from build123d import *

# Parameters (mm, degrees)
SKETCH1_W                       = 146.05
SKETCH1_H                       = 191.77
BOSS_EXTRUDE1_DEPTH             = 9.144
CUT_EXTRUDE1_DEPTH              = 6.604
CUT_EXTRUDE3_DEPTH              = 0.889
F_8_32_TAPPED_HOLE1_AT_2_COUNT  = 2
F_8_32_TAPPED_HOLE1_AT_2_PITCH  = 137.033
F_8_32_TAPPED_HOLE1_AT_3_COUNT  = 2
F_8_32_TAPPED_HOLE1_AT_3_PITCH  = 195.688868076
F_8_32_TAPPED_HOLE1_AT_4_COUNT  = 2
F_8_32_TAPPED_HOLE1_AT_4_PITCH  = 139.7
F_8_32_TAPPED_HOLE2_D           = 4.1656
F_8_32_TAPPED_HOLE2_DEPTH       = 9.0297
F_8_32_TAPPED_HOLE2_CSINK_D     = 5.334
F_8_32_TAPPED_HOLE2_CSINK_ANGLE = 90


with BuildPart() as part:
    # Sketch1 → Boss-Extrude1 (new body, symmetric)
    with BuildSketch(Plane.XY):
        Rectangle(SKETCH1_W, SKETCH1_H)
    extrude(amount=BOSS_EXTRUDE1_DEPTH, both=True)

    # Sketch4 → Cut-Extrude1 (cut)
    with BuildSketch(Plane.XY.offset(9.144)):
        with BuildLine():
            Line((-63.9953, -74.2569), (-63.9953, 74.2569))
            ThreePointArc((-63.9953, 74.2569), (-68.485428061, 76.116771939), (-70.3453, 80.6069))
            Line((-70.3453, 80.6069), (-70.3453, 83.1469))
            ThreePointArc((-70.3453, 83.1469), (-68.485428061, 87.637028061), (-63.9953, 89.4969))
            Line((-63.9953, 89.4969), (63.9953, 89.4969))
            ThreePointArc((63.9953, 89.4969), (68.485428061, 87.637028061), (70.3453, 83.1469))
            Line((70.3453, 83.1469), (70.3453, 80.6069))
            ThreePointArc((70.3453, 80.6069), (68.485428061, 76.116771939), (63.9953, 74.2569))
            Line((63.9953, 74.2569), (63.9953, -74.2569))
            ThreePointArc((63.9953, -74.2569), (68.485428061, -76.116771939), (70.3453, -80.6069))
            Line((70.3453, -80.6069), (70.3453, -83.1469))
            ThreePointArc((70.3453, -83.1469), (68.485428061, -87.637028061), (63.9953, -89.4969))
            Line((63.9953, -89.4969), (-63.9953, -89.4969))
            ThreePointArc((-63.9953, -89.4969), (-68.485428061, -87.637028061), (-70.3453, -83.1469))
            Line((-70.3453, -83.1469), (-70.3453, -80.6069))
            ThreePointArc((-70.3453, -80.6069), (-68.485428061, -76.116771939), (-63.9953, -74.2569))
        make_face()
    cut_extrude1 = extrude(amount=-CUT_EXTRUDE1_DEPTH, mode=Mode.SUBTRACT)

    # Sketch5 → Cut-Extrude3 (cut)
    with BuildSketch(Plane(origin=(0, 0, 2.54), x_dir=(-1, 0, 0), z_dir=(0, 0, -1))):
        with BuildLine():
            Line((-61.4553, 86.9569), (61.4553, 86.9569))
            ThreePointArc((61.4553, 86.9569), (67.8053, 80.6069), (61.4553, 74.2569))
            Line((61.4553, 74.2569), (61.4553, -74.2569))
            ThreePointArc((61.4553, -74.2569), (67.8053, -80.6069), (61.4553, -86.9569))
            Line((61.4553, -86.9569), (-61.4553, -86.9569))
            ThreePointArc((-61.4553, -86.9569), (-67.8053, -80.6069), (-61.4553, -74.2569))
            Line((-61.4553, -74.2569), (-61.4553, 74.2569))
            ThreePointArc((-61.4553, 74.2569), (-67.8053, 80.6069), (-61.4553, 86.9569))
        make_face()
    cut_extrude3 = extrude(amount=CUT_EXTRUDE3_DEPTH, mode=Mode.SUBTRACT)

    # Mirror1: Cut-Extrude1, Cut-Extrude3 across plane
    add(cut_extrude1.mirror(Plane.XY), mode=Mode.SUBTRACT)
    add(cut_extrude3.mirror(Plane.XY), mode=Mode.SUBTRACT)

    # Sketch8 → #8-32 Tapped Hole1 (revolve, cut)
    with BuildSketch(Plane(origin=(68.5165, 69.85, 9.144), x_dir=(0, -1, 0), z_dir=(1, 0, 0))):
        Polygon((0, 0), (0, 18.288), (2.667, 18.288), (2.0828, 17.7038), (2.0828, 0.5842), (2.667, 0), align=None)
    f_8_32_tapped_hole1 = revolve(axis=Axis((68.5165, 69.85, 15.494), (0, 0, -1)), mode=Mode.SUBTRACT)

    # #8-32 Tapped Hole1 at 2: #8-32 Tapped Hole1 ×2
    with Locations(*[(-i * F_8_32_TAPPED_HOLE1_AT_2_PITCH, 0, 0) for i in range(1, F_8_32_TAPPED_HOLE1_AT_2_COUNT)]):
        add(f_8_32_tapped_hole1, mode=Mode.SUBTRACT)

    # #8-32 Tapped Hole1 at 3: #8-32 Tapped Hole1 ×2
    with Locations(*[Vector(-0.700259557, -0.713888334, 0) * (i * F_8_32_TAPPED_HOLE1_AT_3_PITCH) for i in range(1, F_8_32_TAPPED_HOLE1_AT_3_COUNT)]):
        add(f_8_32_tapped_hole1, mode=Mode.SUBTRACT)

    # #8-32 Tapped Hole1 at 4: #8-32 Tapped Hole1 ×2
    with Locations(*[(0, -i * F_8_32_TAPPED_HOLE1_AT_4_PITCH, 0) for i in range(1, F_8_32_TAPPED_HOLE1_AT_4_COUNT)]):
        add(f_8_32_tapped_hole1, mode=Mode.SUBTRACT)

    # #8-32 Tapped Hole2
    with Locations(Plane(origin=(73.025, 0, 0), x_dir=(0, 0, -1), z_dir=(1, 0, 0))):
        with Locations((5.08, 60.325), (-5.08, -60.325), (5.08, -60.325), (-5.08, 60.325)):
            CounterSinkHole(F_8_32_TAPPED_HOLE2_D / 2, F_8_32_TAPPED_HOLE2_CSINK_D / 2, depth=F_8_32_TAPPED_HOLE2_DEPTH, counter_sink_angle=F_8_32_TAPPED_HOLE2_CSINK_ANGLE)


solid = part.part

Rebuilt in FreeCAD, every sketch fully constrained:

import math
import FreeCAD as App
import Part
import Sketcher
Q = App.Units.Quantity


def add_polygon(sketch, points):
    """Adds a closed chain of lines whose ends are joined by coincident constraints."""
    first, n = sketch.GeometryCount, len(points)
    for a, b in zip(points, points[1:] + points[:1]):
        sketch.addGeometry(Part.LineSegment(App.Vector(*a, 0), App.Vector(*b, 0)), False)
    for i in range(n):
        sketch.addConstraint(Sketcher.Constraint("Coincident", first + i, 2, first + (i + 1) % n, 1))

doc = App.newDocument("Part")
body = doc.addObject("PartDesign::Body", "Body")

# Sketch on XY plane
sketch1 = body.newObject("Sketcher::SketchObject", "Sketch")
sketch1.AttachmentSupport = (doc.getObject("XY_Plane"), [""])
sketch1.MapMode = "FlatFace"
add_polygon(sketch1, [(-73, 96), (-73, -96), (73, -96), (73, 96)])  # lines 0-3
sketch1.addConstraint([
    Sketcher.Constraint("Vertical", 0),
    Sketcher.Constraint("Horizontal", 1),
    Sketcher.Constraint("Vertical", 2),
    Sketcher.Constraint("Horizontal", 3),
    Sketcher.Constraint("Symmetric", 0, 2, 2, 2, -1, 1),
    Sketcher.Constraint("DistanceX", 1, 1, 1, 2, Q("5.75 in")),
    Sketcher.Constraint("DistanceY", 0, 2, 0, 1, Q("7.55 in")),
])
pad1 = body.newObject("PartDesign::Pad", "Pad")
pad1.Profile = sketch1
pad1.Length = Q("0.72 in")
pad1.Midplane = True

# Sketch on XY plane
sketch2 = body.newObject("Sketcher::SketchObject", "Sketch001")
sketch2.AttachmentSupport = (doc.getObject("XY_Plane"), [""])
sketch2.MapMode = "FlatFace"
sketch2.AttachmentOffset = App.Placement(App.Vector(0, 0, 0.36 * 25.4), App.Rotation())
sketch2.addGeometry([
    Part.LineSegment(App.Vector(-64, 74.3, 0), App.Vector(-64, -74.3, 0)),  # 0
    Part.ArcOfCircle(Part.Circle(App.Vector(-64, -80.6, 0), App.Vector(0, 0, 1), 6.3), math.radians(90), math.radians(180)),  # 1
    Part.LineSegment(App.Vector(-70.3, -80.6, 0), App.Vector(-70.3, -83.1, 0)),  # 2
    Part.ArcOfCircle(Part.Circle(App.Vector(-64, -83.1, 0), App.Vector(0, 0, 1), 6.3), math.radians(180), math.radians(270)),  # 3
    Part.LineSegment(App.Vector(-64, -89.5, 0), App.Vector(64, -89.5, 0)),  # 4
    Part.ArcOfCircle(Part.Circle(App.Vector(64, -83.1, 0), App.Vector(0, 0, 1), 6.3), math.radians(-90), math.radians(0)),  # 5
    Part.LineSegment(App.Vector(70.3, -83.1, 0), App.Vector(70.3, -80.6, 0)),  # 6
    Part.ArcOfCircle(Part.Circle(App.Vector(64, -80.6, 0), App.Vector(0, 0, 1), 6.3), math.radians(0), math.radians(90)),  # 7
    Part.LineSegment(App.Vector(64, -74.3, 0), App.Vector(64, 74.3, 0)),  # 8
    Part.ArcOfCircle(Part.Circle(App.Vector(64, 80.6, 0), App.Vector(0, 0, 1), 6.3), math.radians(-90), math.radians(0)),  # 9
    Part.LineSegment(App.Vector(70.3, 80.6, 0), App.Vector(70.3, 83.1, 0)),  # 10
    Part.ArcOfCircle(Part.Circle(App.Vector(64, 83.1, 0), App.Vector(0, 0, 1), 6.3), math.radians(0), math.radians(90)),  # 11
    Part.LineSegment(App.Vector(64, 89.5, 0), App.Vector(-64, 89.5, 0)),  # 12
    Part.ArcOfCircle(Part.Circle(App.Vector(-64, 83.1, 0), App.Vector(0, 0, 1), 6.3), math.radians(90), math.radians(180)),  # 13
    Part.LineSegment(App.Vector(-70.3, 83.1, 0), App.Vector(-70.3, 80.6, 0)),  # 14
    Part.ArcOfCircle(Part.Circle(App.Vector(-64, 80.6, 0), App.Vector(0, 0, 1), 6.3), math.radians(180), math.radians(270)),  # 15
], False)
sketch2.addConstraint([
    Sketcher.Constraint("Coincident", 0, 2, 1, 1),
    Sketcher.Constraint("Tangent", 1, 2, 2, 1),
    Sketcher.Constraint("Tangent", 2, 2, 3, 1),
    Sketcher.Constraint("Tangent", 3, 2, 4, 1),
    Sketcher.Constraint("Tangent", 4, 2, 5, 1),
    Sketcher.Constraint("Tangent", 5, 2, 6, 1),
    Sketcher.Constraint("Tangent", 6, 2, 7, 1),
    Sketcher.Constraint("Coincident", 7, 2, 8, 1),
    Sketcher.Constraint("Coincident", 8, 2, 9, 1),
    Sketcher.Constraint("Tangent", 9, 2, 10, 1),
    Sketcher.Constraint("Tangent", 10, 2, 11, 1),
    Sketcher.Constraint("Tangent", 11, 2, 12, 1),
    Sketcher.Constraint("Tangent", 12, 2, 13, 1),
    Sketcher.Constraint("Tangent", 13, 2, 14, 1),
    Sketcher.Constraint("Tangent", 14, 2, 15, 1),
    Sketcher.Constraint("Coincident", 15, 2, 0, 1),
    Sketcher.Constraint("Vertical", 0),
    Sketcher.Constraint("Vertical", 2),
    Sketcher.Constraint("Horizontal", 4),
    Sketcher.Constraint("Vertical", 6),
    Sketcher.Constraint("Vertical", 8),
    Sketcher.Constraint("Vertical", 10),
    Sketcher.Constraint("Horizontal", 12),
    Sketcher.Constraint("Vertical", 14),
    Sketcher.Constraint("Equal", 1, 3),
    Sketcher.Constraint("Equal", 3, 5),
    Sketcher.Constraint("Equal", 5, 7),
    Sketcher.Constraint("Equal", 7, 9),
    Sketcher.Constraint("Equal", 9, 11),
    Sketcher.Constraint("Equal", 11, 13),
    Sketcher.Constraint("Equal", 13, 15),
    Sketcher.Constraint("Symmetric", 1, 3, 9, 3, -1, 1),
    Sketcher.Constraint("Symmetric", 5, 3, 13, 3, -1, 1),
    Sketcher.Constraint("Symmetric", 7, 2, 15, 2, -1, 1),
    Sketcher.Constraint("Symmetric", 1, 3, 7, 3, -2),
    Sketcher.Constraint("Vertical", 15, 3, 0, 2),
    Sketcher.Constraint("Radius", 1, Q("0.25 in")),
    Sketcher.Constraint("DistanceY", 2, 2, 2, 1, Q("0.1 in")),
    Sketcher.Constraint("DistanceX", 4, 1, 4, 2, Q("5.039 in")),
    Sketcher.Constraint("DistanceY", 0, 2, 0, 1, Q("5.847 in")),
])
pocket1 = body.newObject("PartDesign::Pocket", "Pocket")
pocket1.Profile = sketch2
pocket1.Length = Q("0.26 in")

# Sketch on XY plane
sketch3 = body.newObject("Sketcher::SketchObject", "Sketch002")
sketch3.AttachmentSupport = (doc.getObject("XY_Plane"), [""])
sketch3.MapMode = "FlatFace"
sketch3.AttachmentOffset = App.Placement(App.Vector(0, 0, 0.1 * 25.4), App.Rotation())
sketch3.addGeometry([
    Part.LineSegment(App.Vector(-61, 87, 0), App.Vector(61, 87, 0)),  # 0
    Part.ArcOfCircle(Part.Circle(App.Vector(61, 81, 0), App.Vector(0, 0, 1), 6), math.radians(-90), math.radians(90)),  # 1
    Part.LineSegment(App.Vector(61, 74, 0), App.Vector(61, -74, 0)),  # 2
    Part.ArcOfCircle(Part.Circle(App.Vector(61, -81, 0), App.Vector(0, 0, 1), 6), math.radians(-90), math.radians(90)),  # 3
    Part.LineSegment(App.Vector(61, -87, 0), App.Vector(-61, -87, 0)),  # 4
    Part.ArcOfCircle(Part.Circle(App.Vector(-61, -81, 0), App.Vector(0, 0, 1), 6), math.radians(90), math.radians(270)),  # 5
    Part.LineSegment(App.Vector(-61, -74, 0), App.Vector(-61, 74, 0)),  # 6
    Part.ArcOfCircle(Part.Circle(App.Vector(-61, 81, 0), App.Vector(0, 0, 1), 6), math.radians(90), math.radians(270)),  # 7
], False)
sketch3.addConstraint([
    Sketcher.Constraint("Tangent", 0, 2, 1, 2),
    Sketcher.Constraint("Coincident", 1, 1, 2, 1),
    Sketcher.Constraint("Coincident", 2, 2, 3, 2),
    Sketcher.Constraint("Tangent", 3, 1, 4, 1),
    Sketcher.Constraint("Tangent", 4, 2, 5, 2),
    Sketcher.Constraint("Coincident", 5, 1, 6, 1),
    Sketcher.Constraint("Coincident", 6, 2, 7, 2),
    Sketcher.Constraint("Tangent", 7, 1, 0, 1),
    Sketcher.Constraint("Horizontal", 0),
    Sketcher.Constraint("Vertical", 2),
    Sketcher.Constraint("Horizontal", 4),
    Sketcher.Constraint("Vertical", 6),
    Sketcher.Constraint("Equal", 1, 3),
    Sketcher.Constraint("Equal", 3, 5),
    Sketcher.Constraint("Equal", 5, 7),
    Sketcher.Constraint("Symmetric", 1, 3, 5, 3, -1, 1),
    Sketcher.Constraint("Vertical", 1, 3, 3, 3),
    Sketcher.Constraint("Vertical", 5, 3, 7, 3),
    Sketcher.Constraint("Vertical", 0, 2, 1, 1),
    Sketcher.Constraint("Vertical", 4, 2, 5, 1),
    Sketcher.Constraint("Radius", 1, Q("0.25 in")),
    Sketcher.Constraint("DistanceX", 0, 1, 0, 2, Q("4.839 in")),
    Sketcher.Constraint("DistanceY", 2, 2, 2, 1, Q("5.847 in")),
])
pocket2 = body.newObject("PartDesign::Pocket", "Pocket001")
pocket2.Profile = sketch3
pocket2.Length = Q("0.035 in")
doc.recompute()

mirrored = body.newObject("PartDesign::Mirrored", "Mirrored")
mirrored.Originals = [pocket1, pocket2]
mirrored.MirrorPlane = (doc.getObject("XY_Plane"), [""])
body.Tip = mirrored

# Sketch on YZ plane
sketch4 = body.newObject("Sketcher::SketchObject", "Sketch003")
sketch4.AttachmentSupport = (doc.getObject("YZ_Plane"), [""])
sketch4.MapMode = "FlatFace"
sketch4.AttachmentOffset = App.Placement(App.Vector(0, 0, 2.6975 * 25.4), App.Rotation())
add_polygon(sketch4, [(69.8, -9.1), (69.8, 9.1), (67.2, 9.1), (67.8, 8.6), (67.8, -8.6), (67.2, -9.1)])  # lines 0-5
sketch4.addGeometry(Part.LineSegment(App.Vector(69.8, 9.1, 0), App.Vector(69.8, -9.1, 0)), True)  # axis
sketch4.addConstraint([
    Sketcher.Constraint("Vertical", 0),
    Sketcher.Constraint("Horizontal", 1),
    Sketcher.Constraint("Vertical", 3),
    Sketcher.Constraint("Horizontal", 5),
    Sketcher.Constraint("Vertical", 6),
    Sketcher.Constraint("Coincident", 6, 1, 0, 2),
    Sketcher.Constraint("Symmetric", 1, 2, 4, 2, -1),
    Sketcher.Constraint("Perpendicular", 2, 4),
    Sketcher.Constraint("Horizontal", 4, 2, 6, 2),
    Sketcher.Constraint("Equal", 2, 4),
    Sketcher.Constraint("DistanceY", 0, 1, 0, 2, Q("0.72 in")),
    Sketcher.Constraint("DistanceX", 1, 2, 1, 1, Q("0.105 in")),
    Sketcher.Constraint("DistanceY", 3, 2, 3, 1, Q("0.674 in")),
    Sketcher.Constraint("DistanceX", -1, 1, 0, 2, Q("2.75 in")),
])
groove = body.newObject("PartDesign::Groove", "Groove")
groove.Profile = sketch4
groove.ReferenceAxis = (sketch4, ["Axis0"])
groove.Angle = 360
doc.recompute()

linearpattern = body.newObject("PartDesign::LinearPattern", "LinearPattern")
linearpattern.Originals = [groove]
linearpattern.Direction = (doc.getObject("X_Axis"), [""])
linearpattern.Mode = "offset"
linearpattern.Offset = Q("5.395 in")
linearpattern.Occurrences = 2
linearpattern.Reversed = True
body.Tip = linearpattern
doc.recompute()

datumline = body.newObject("PartDesign::Line", "DatumLine")
datumline.Placement = App.Placement(App.Vector(0, 0, 0), App.Rotation(App.Vector(0, 0, 1), App.Vector(-0.700259557, -0.713888334, 0)))
linearpattern2 = body.newObject("PartDesign::LinearPattern", "LinearPattern001")
linearpattern2.Originals = [groove]
linearpattern2.Direction = (datumline, [""])
linearpattern2.Mode = "offset"
linearpattern2.Offset = 195.688868
linearpattern2.Occurrences = 2
body.Tip = linearpattern2
doc.recompute()

linearpattern3 = body.newObject("PartDesign::LinearPattern", "LinearPattern002")
linearpattern3.Originals = [groove]
linearpattern3.Direction = (doc.getObject("Y_Axis"), [""])
linearpattern3.Mode = "offset"
linearpattern3.Offset = Q("5.5 in")
linearpattern3.Occurrences = 2
linearpattern3.Reversed = True
body.Tip = linearpattern3

# Sketch on YZ plane
sketch5 = body.newObject("Sketcher::SketchObject", "Sketch004")
sketch5.AttachmentSupport = (doc.getObject("YZ_Plane"), [""])
sketch5.MapMode = "FlatFace"
sketch5.AttachmentOffset = App.Placement(App.Vector(0, 0, 2.875 * 25.4), App.Rotation())
sketch5.addGeometry([
    Part.Circle(App.Vector(60.3, -5.1, 0), App.Vector(0, 0, 1), 2.1),
    Part.Circle(App.Vector(-60.3, 5.1, 0), App.Vector(0, 0, 1), 2.1),
    Part.Circle(App.Vector(-60.3, -5.1, 0), App.Vector(0, 0, 1), 2.1),
    Part.Circle(App.Vector(60.3, 5.1, 0), App.Vector(0, 0, 1), 2.1),
], False)
sketch5.addConstraint([
    Sketcher.Constraint("Equal", 0, 1),
    Sketcher.Constraint("Equal", 1, 2),
    Sketcher.Constraint("Equal", 2, 3),
    Sketcher.Constraint("Symmetric", 0, 3, 1, 3, -1, 1),
    Sketcher.Constraint("Symmetric", 2, 3, 3, 3, -1, 1),
    Sketcher.Constraint("Symmetric", 0, 3, 2, 3, -2),
    Sketcher.Constraint("Diameter", 0, Q("0.164 in")),
    Sketcher.Constraint("DistanceY", 0, 3, -1, 1, Q("0.2 in")),
    Sketcher.Constraint("DistanceX", 1, 3, 0, 3, Q("4.75 in")),
])
doc.recompute()
hole = body.newObject("PartDesign::Hole", "Hole")
hole.Profile = sketch5
hole.ThreadType = "None"
hole.Diameter = Q("0.164 in")
hole.DepthType = "Dimension"
hole.Depth = Q("0.3555 in")
hole.DrillPoint = "Flat"
hole.HoleCutType = "Countersink"
hole.HoleCutDiameter = Q("0.21 in")
hole.HoleCutCountersinkAngle = 90

doc.recompute()
